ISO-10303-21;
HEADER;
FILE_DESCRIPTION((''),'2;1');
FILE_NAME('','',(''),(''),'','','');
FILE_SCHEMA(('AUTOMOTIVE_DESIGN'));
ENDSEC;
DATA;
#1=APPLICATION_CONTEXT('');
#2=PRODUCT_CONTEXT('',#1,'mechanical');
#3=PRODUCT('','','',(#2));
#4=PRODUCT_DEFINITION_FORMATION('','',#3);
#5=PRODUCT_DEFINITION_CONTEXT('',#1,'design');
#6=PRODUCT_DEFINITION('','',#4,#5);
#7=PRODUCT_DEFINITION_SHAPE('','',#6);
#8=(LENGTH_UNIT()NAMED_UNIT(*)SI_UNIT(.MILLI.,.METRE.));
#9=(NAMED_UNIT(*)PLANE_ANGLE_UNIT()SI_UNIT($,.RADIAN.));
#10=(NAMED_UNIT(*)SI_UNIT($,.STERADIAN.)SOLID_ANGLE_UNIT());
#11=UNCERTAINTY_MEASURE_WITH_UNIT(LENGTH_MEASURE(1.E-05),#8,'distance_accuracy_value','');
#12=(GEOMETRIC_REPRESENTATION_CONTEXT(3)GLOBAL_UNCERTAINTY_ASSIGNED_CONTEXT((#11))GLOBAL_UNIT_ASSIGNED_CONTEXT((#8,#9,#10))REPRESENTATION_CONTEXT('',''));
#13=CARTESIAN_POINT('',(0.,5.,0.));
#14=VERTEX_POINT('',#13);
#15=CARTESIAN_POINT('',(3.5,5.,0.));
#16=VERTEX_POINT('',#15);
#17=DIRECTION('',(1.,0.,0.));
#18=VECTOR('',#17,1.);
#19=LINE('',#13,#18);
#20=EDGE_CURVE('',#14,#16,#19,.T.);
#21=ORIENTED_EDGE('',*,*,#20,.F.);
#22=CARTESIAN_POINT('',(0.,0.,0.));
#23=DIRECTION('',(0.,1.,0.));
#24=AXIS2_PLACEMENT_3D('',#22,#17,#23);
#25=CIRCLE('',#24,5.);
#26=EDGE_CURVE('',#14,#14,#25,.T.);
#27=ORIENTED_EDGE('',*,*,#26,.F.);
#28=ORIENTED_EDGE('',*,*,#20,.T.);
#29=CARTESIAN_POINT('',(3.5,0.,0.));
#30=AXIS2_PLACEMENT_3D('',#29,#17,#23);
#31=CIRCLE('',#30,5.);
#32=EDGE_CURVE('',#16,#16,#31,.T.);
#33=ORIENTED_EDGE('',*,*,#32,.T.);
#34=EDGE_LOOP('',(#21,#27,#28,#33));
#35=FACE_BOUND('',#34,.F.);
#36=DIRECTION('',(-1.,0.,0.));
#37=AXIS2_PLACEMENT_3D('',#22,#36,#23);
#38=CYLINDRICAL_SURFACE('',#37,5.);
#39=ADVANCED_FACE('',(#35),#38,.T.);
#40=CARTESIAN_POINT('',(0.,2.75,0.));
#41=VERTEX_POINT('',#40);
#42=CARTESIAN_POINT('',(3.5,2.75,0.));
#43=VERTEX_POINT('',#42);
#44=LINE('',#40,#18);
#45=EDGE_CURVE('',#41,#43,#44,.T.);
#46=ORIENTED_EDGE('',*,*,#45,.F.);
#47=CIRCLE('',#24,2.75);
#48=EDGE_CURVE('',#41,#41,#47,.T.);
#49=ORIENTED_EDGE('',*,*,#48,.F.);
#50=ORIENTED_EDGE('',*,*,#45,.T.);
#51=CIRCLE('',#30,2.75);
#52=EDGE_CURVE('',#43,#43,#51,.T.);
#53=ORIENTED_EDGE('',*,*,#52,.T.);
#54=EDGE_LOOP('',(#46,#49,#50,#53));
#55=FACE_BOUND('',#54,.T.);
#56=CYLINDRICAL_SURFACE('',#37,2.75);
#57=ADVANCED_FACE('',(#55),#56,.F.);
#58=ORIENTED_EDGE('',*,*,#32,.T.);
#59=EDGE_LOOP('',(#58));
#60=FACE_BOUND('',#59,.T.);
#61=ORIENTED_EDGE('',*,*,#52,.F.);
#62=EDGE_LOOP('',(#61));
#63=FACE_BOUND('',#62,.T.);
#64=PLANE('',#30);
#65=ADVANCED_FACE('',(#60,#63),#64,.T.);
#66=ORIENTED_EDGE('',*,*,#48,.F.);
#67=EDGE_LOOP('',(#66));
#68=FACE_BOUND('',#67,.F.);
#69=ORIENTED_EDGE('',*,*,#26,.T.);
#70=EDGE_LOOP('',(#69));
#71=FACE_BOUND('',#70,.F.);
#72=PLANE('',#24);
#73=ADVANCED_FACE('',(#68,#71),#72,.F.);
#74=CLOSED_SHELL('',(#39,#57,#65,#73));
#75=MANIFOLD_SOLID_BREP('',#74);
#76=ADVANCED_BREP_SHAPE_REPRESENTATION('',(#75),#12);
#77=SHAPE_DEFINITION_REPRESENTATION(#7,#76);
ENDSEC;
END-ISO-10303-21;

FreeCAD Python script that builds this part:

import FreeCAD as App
import Part
import Sketcher
Q = App.Units.Quantity

doc = App.newDocument("Part")
body = doc.addObject("PartDesign::Body", "Body")

# Sketch on YZ plane
sketch1 = doc.addObject("Sketcher::SketchObject", "Sketch")
body.addObject(sketch1)
sketch1.AttachmentSupport = (doc.YZ_Plane, [""])
sketch1.MapMode = "FlatFace"
sketch1.addGeometry([
    Part.Circle(App.Vector(0, 0, 0), App.Vector(0, 0, 1), 5),
    Part.Circle(App.Vector(0, 0, 0), App.Vector(0, 0, 1), 2.8),
], False)
sketch1.addConstraint([
    Sketcher.Constraint("Coincident", 0, 3, -1, 1),
    Sketcher.Constraint("Coincident", 1, 3, -1, 1),
    Sketcher.Constraint("Diameter", 0, Q("10 mm")),
    Sketcher.Constraint("Diameter", 1, Q("5.5 mm")),
])
pad1 = doc.addObject("PartDesign::Pad", "Pad")
body.addObject(pad1)
pad1.Profile = sketch1
pad1.Length = 3.5

doc.recompute()
